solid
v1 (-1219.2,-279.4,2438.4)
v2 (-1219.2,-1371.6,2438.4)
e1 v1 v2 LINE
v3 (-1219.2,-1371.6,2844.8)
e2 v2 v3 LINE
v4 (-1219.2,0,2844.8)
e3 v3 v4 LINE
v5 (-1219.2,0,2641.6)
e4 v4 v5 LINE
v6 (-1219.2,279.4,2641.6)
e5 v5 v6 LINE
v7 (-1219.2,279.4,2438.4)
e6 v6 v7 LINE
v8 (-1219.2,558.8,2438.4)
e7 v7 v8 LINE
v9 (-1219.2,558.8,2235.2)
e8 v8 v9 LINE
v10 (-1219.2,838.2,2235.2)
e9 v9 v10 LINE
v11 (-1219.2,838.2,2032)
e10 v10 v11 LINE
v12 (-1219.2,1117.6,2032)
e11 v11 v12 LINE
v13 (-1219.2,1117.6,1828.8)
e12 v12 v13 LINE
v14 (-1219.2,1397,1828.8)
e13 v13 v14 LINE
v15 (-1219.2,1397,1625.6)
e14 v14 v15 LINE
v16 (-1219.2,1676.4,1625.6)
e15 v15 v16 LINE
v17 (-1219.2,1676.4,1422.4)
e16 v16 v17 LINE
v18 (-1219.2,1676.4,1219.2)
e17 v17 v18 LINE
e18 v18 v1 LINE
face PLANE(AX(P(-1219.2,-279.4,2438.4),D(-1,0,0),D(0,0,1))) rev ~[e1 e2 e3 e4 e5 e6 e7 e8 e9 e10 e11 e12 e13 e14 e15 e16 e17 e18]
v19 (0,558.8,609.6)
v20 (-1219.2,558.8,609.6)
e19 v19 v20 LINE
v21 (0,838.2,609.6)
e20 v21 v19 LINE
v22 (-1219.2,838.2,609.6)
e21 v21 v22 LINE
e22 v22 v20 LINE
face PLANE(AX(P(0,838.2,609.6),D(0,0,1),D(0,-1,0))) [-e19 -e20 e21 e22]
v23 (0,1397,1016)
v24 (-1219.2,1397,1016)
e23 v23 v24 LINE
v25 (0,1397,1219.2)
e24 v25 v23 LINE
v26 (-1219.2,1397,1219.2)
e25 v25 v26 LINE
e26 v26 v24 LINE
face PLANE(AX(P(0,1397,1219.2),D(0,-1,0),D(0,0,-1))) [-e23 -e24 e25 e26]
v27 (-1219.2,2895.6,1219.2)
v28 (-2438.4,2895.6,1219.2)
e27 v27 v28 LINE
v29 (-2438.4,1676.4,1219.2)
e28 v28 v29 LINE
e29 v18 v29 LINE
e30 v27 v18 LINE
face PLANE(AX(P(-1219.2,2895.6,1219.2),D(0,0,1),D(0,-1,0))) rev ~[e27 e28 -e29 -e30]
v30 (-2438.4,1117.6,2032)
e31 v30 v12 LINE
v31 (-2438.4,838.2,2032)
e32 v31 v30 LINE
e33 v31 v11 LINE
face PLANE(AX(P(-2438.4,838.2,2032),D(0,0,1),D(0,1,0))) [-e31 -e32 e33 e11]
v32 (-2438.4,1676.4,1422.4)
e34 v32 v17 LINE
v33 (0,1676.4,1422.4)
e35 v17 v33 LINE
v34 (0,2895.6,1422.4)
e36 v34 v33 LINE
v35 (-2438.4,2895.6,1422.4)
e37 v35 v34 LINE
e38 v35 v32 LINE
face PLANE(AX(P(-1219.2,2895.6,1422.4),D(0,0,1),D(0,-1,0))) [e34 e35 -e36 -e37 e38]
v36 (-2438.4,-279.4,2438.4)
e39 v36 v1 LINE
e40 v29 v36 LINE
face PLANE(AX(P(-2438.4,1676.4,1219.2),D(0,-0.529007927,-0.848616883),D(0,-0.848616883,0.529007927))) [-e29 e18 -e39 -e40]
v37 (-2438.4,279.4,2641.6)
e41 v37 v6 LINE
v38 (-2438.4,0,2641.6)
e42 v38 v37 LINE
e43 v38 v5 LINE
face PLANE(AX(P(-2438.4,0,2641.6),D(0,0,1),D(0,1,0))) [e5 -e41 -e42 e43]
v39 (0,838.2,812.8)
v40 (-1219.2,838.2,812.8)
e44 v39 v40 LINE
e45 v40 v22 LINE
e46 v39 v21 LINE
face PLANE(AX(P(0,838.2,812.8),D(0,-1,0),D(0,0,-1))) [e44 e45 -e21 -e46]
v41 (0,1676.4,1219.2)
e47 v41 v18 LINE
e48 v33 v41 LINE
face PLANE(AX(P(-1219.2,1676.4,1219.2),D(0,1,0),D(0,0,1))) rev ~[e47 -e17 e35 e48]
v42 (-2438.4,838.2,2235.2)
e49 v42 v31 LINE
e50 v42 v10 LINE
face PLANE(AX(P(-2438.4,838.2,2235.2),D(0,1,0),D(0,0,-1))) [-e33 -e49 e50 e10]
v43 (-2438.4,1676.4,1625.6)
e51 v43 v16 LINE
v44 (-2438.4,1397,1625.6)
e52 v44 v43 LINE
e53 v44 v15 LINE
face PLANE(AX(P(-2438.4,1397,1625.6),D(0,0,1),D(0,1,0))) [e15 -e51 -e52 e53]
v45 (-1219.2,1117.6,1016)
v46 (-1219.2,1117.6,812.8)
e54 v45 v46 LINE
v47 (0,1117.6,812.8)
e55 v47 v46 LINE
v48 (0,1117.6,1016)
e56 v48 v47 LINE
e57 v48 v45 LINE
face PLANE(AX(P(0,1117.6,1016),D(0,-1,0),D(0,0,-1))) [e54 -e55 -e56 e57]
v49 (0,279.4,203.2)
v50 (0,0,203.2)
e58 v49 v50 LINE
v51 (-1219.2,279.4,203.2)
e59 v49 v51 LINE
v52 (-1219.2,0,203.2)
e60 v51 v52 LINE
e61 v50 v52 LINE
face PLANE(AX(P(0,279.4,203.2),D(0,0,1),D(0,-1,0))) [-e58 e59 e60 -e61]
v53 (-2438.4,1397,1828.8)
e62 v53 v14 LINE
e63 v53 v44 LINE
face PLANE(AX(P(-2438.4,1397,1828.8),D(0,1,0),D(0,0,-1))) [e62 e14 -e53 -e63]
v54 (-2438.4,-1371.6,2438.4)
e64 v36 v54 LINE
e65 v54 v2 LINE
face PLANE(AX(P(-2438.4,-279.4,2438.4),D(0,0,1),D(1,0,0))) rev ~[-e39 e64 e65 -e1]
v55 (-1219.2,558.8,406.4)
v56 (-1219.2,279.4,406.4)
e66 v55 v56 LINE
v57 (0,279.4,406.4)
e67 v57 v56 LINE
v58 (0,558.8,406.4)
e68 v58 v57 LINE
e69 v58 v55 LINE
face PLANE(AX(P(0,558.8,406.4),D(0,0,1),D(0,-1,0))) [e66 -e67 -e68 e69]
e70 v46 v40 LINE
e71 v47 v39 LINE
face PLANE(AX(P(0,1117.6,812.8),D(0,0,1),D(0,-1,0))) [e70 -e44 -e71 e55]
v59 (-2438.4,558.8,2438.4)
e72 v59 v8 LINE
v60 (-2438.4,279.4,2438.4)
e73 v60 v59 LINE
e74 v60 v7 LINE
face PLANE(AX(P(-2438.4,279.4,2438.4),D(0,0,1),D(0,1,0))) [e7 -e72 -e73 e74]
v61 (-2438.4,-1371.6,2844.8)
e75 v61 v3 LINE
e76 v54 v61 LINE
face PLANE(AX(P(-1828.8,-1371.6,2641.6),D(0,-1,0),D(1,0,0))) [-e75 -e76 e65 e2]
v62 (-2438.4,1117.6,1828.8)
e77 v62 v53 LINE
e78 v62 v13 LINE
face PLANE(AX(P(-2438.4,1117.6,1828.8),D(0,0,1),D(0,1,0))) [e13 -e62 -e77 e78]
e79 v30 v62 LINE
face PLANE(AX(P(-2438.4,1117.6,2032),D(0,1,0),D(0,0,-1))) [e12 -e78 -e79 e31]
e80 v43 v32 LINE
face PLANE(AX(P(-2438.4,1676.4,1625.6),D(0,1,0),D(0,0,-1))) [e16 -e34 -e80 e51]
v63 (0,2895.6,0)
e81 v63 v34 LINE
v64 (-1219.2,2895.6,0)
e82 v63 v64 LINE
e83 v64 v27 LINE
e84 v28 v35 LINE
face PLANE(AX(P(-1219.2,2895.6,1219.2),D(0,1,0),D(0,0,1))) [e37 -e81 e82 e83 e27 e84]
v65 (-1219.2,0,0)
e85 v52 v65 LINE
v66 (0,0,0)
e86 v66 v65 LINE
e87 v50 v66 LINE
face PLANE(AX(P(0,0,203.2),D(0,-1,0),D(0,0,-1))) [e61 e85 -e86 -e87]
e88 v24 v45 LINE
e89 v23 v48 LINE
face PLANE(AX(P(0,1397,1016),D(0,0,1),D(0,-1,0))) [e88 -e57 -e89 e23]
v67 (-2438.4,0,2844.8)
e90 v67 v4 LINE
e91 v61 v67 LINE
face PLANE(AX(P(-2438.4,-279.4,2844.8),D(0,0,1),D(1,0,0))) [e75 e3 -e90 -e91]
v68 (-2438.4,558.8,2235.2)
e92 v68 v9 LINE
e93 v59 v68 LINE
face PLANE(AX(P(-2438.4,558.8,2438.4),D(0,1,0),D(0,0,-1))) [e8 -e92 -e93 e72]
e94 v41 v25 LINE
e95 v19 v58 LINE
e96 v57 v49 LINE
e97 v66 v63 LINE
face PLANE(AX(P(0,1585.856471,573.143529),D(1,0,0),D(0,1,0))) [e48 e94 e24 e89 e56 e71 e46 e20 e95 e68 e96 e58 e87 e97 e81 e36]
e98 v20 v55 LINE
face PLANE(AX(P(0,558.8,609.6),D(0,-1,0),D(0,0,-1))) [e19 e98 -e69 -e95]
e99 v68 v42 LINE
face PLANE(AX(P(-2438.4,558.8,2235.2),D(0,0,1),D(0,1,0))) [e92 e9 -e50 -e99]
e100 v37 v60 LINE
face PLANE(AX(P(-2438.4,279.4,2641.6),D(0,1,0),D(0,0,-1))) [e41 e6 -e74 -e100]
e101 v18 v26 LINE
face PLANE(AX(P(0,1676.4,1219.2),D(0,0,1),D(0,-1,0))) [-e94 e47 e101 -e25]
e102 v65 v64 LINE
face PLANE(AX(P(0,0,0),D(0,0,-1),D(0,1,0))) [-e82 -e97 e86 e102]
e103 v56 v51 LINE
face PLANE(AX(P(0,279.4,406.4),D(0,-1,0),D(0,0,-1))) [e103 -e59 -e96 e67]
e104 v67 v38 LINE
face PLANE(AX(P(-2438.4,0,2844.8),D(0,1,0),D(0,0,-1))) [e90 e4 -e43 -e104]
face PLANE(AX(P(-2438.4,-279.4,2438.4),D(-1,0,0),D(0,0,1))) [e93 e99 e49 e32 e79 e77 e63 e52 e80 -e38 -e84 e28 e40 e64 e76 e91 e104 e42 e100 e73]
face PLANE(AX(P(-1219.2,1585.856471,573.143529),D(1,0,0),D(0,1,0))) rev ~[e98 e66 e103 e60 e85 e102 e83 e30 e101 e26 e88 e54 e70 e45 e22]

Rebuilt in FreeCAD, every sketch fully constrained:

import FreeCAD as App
import Part
import Sketcher

V = App.Vector
Q = App.Units.Quantity

doc = App.newDocument("Part")
body = doc.addObject("PartDesign::Body", "Body")

sketch1 = body.newObject("Sketcher::SketchObject", "Sketch")
sketch1.AttachmentSupport = (doc.getObject("YZ_Plane"), [""])
sketch1.MapMode = "FlatFace"
sketch1.addGeometry([
    Part.LineSegment(V(0, 203, 0), V(0, 0, 0)),
    Part.LineSegment(V(0, 0, 0), V(2896, 0, 0)),
    Part.LineSegment(V(2896, 0, 0), V(2896, 1422, 0)),
    Part.LineSegment(V(2896, 1422, 0), V(1676, 1422, 0)),
    Part.LineSegment(V(1676, 1422, 0), V(1676, 1219, 0)),
    Part.LineSegment(V(1676, 1219, 0), V(1397, 1219, 0)),
    Part.LineSegment(V(1397, 1219, 0), V(1397, 1016, 0)),
    Part.LineSegment(V(1397, 1016, 0), V(1118, 1016, 0)),
    Part.LineSegment(V(1118, 1016, 0), V(1118, 813, 0)),
    Part.LineSegment(V(1118, 813, 0), V(838, 813, 0)),
    Part.LineSegment(V(838, 813, 0), V(838, 610, 0)),
    Part.LineSegment(V(838, 610, 0), V(559, 610, 0)),
    Part.LineSegment(V(559, 610, 0), V(559, 406, 0)),
    Part.LineSegment(V(559, 406, 0), V(279, 406, 0)),
    Part.LineSegment(V(279, 406, 0), V(279, 203, 0)),
    Part.LineSegment(V(279, 203, 0), V(0, 203, 0)),
], False)
sketch1.addConstraint([
    Sketcher.Constraint("Coincident", 0, 2, 1, 1),
    Sketcher.Constraint("Coincident", 1, 2, 2, 1),
    Sketcher.Constraint("Coincident", 2, 2, 3, 1),
    Sketcher.Constraint("Coincident", 3, 2, 4, 1),
    Sketcher.Constraint("Coincident", 4, 2, 5, 1),
    Sketcher.Constraint("Coincident", 5, 2, 6, 1),
    Sketcher.Constraint("Coincident", 6, 2, 7, 1),
    Sketcher.Constraint("Coincident", 7, 2, 8, 1),
    Sketcher.Constraint("Coincident", 8, 2, 9, 1),
    Sketcher.Constraint("Coincident", 9, 2, 10, 1),
    Sketcher.Constraint("Coincident", 10, 2, 11, 1),
    Sketcher.Constraint("Coincident", 11, 2, 12, 1),
    Sketcher.Constraint("Coincident", 12, 2, 13, 1),
    Sketcher.Constraint("Coincident", 13, 2, 14, 1),
    Sketcher.Constraint("Coincident", 14, 2, 15, 1),
    Sketcher.Constraint("Coincident", 15, 2, 0, 1),
    Sketcher.Constraint("Vertical", 0),
    Sketcher.Constraint("Horizontal", 1),
    Sketcher.Constraint("Vertical", 2),
    Sketcher.Constraint("Horizontal", 3),
    Sketcher.Constraint("Vertical", 4),
    Sketcher.Constraint("Horizontal", 5),
    Sketcher.Constraint("Vertical", 6),
    Sketcher.Constraint("Horizontal", 7),
    Sketcher.Constraint("Vertical", 8),
    Sketcher.Constraint("Horizontal", 9),
    Sketcher.Constraint("Vertical", 10),
    Sketcher.Constraint("Horizontal", 11),
    Sketcher.Constraint("Vertical", 12),
    Sketcher.Constraint("Horizontal", 13),
    Sketcher.Constraint("Vertical", 14),
    Sketcher.Constraint("Horizontal", 15),
    Sketcher.Constraint("Coincident", 0, 2, -1, 1),
    Sketcher.Constraint("Equal", 5, 7),
    Sketcher.Constraint("Equal", 7, 9),
    Sketcher.Constraint("Equal", 9, 11),
    Sketcher.Constraint("Equal", 11, 13),
    Sketcher.Constraint("Equal", 13, 15),
    Sketcher.Constraint("Equal", 0, 4),
    Sketcher.Constraint("Equal", 4, 6),
    Sketcher.Constraint("Equal", 6, 8),
    Sketcher.Constraint("Equal", 8, 10),
    Sketcher.Constraint("Equal", 10, 12),
    Sketcher.Constraint("Equal", 12, 14),
    Sketcher.Constraint("DistanceX", 1, 1, 1, 2, Q("114 in")),
    Sketcher.Constraint("DistanceX", 3, 2, 3, 1, Q("48 in")),
    Sketcher.Constraint("DistanceY", 0, 2, 0, 1, Q("8 in")),
])
pad1 = body.newObject("PartDesign::Pad", "Pad")
pad1.Profile = sketch1
pad1.Length = Q("48 in")
pad1.Reversed = True

sketch2 = body.newObject("Sketcher::SketchObject", "Sketch001")
sketch2.AttachmentSupport = (doc.getObject("YZ_Plane"), [""])
sketch2.MapMode = "FlatFace"
sketch2.AttachmentOffset = App.Placement(V(0, 0, -48 * 25.4), App.Rotation())
sketch2.addGeometry([
    Part.LineSegment(V(2896, 1422, 0), V(2896, 1219, 0)),
    Part.LineSegment(V(2896, 1219, 0), V(1676, 1219, 0)),
    Part.LineSegment(V(1676, 1219, 0), V(1676, 1422, 0)),
    Part.LineSegment(V(1676, 1422, 0), V(2896, 1422, 0)),
], False)
sketch2.addConstraint([
    Sketcher.Constraint("Coincident", 0, 2, 1, 1),
    Sketcher.Constraint("Coincident", 1, 2, 2, 1),
    Sketcher.Constraint("Coincident", 2, 2, 3, 1),
    Sketcher.Constraint("Coincident", 3, 2, 0, 1),
    Sketcher.Constraint("Vertical", 0),
    Sketcher.Constraint("Horizontal", 1),
    Sketcher.Constraint("Vertical", 2),
    Sketcher.Constraint("Horizontal", 3),
    Sketcher.Constraint("DistanceX", 1, 2, 1, 1, Q("48 in")),
    Sketcher.Constraint("DistanceY", 0, 2, 0, 1, Q("8 in")),
    Sketcher.Constraint("DistanceX", -1, 1, 0, 2, Q("114 in")),
    Sketcher.Constraint("DistanceY", -1, 1, 0, 2, Q("48 in")),
])
pad2 = body.newObject("PartDesign::Pad", "Pad001")
pad2.Profile = sketch2
pad2.Length = Q("48 in")
pad2.Reversed = True

sketch3 = body.newObject("Sketcher::SketchObject", "Sketch002")
sketch3.AttachmentSupport = (doc.getObject("YZ_Plane"), [""])
sketch3.MapMode = "FlatFace"
sketch3.AttachmentOffset = App.Placement(V(0, 0, -96 * 25.4), App.Rotation())
sketch3.addGeometry([
    Part.LineSegment(V(1676, 1626, 0), V(1676, 1219, 0)),
    Part.LineSegment(V(1676, 1219, 0), V(-279, 2438, 0)),
    Part.LineSegment(V(-279, 2438, 0), V(-279, 2845, 0)),
    Part.LineSegment(V(-279, 2845, 0), V(0, 2845, 0)),
    Part.LineSegment(V(0, 2845, 0), V(0, 2642, 0)),
    Part.LineSegment(V(0, 2642, 0), V(279, 2642, 0)),
    Part.LineSegment(V(279, 2642, 0), V(279, 2438, 0)),
    Part.LineSegment(V(279, 2438, 0), V(559, 2438, 0)),
    Part.LineSegment(V(559, 2438, 0), V(559, 2235, 0)),
    Part.LineSegment(V(559, 2235, 0), V(838, 2235, 0)),
    Part.LineSegment(V(838, 2235, 0), V(838, 2032, 0)),
    Part.LineSegment(V(838, 2032, 0), V(1118, 2032, 0)),
    Part.LineSegment(V(1118, 2032, 0), V(1118, 1829, 0)),
    Part.LineSegment(V(1118, 1829, 0), V(1397, 1829, 0)),
    Part.LineSegment(V(1397, 1829, 0), V(1397, 1626, 0)),
    Part.LineSegment(V(1397, 1626, 0), V(1676, 1626, 0)),
], False)
sketch3.addConstraint([
    Sketcher.Constraint("Coincident", 0, 2, 1, 1),
    Sketcher.Constraint("Coincident", 1, 2, 2, 1),
    Sketcher.Constraint("Coincident", 2, 2, 3, 1),
    Sketcher.Constraint("Coincident", 3, 2, 4, 1),
    Sketcher.Constraint("Coincident", 4, 2, 5, 1),
    Sketcher.Constraint("Coincident", 5, 2, 6, 1),
    Sketcher.Constraint("Coincident", 6, 2, 7, 1),
    Sketcher.Constraint("Coincident", 7, 2, 8, 1),
    Sketcher.Constraint("Coincident", 8, 2, 9, 1),
    Sketcher.Constraint("Coincident", 9, 2, 10, 1),
    Sketcher.Constraint("Coincident", 10, 2, 11, 1),
    Sketcher.Constraint("Coincident", 11, 2, 12, 1),
    Sketcher.Constraint("Coincident", 12, 2, 13, 1),
    Sketcher.Constraint("Coincident", 13, 2, 14, 1),
    Sketcher.Constraint("Coincident", 14, 2, 15, 1),
    Sketcher.Constraint("Coincident", 15, 2, 0, 1),
    Sketcher.Constraint("Vertical", 0),
    Sketcher.Constraint("Vertical", 2),
    Sketcher.Constraint("Horizontal", 3),
    Sketcher.Constraint("Vertical", 4),
    Sketcher.Constraint("Horizontal", 5),
    Sketcher.Constraint("Vertical", 6),
    Sketcher.Constraint("Horizontal", 7),
    Sketcher.Constraint("Vertical", 8),
    Sketcher.Constraint("Horizontal", 9),
    Sketcher.Constraint("Vertical", 10),
    Sketcher.Constraint("Horizontal", 11),
    Sketcher.Constraint("Vertical", 12),
    Sketcher.Constraint("Horizontal", 13),
    Sketcher.Constraint("Vertical", 14),
    Sketcher.Constraint("Horizontal", 15),
    Sketcher.Constraint("Symmetric", 1, 2, 6, 2, -2),
    Sketcher.Constraint("PointOnObject", 3, 2, -2),
    Sketcher.Constraint("Equal", 5, 7),
    Sketcher.Constraint("Equal", 7, 9),
    Sketcher.Constraint("Equal", 9, 11),
    Sketcher.Constraint("Equal", 11, 13),
    Sketcher.Constraint("Equal", 13, 15),
    Sketcher.Constraint("Equal", 0, 2),
    Sketcher.Constraint("Equal", 4, 6),
    Sketcher.Constraint("Equal", 6, 8),
    Sketcher.Constraint("Equal", 8, 10),
    Sketcher.Constraint("Equal", 10, 12),
    Sketcher.Constraint("Equal", 12, 14),
    Sketcher.Constraint("DistanceX", 3, 1, 3, 2, Q("11 in")),
    Sketcher.Constraint("DistanceY", 0, 2, 0, 1, Q("16 in")),
    Sketcher.Constraint("DistanceY", -1, 1, 0, 2, Q("48 in")),
])
pad3 = body.newObject("PartDesign::Pad", "Pad002")
pad3.Profile = sketch3
pad3.Length = Q("48 in")

sketch4 = body.newObject("Sketcher::SketchObject", "Sketch003")
sketch4.AttachmentSupport = (doc.getObject("XZ_Plane"), [""])
sketch4.MapMode = "FlatFace"
sketch4.AttachmentOffset = App.Placement(V(0, 0, 11 * 25.4), App.Rotation())
sketch4.addGeometry([
    Part.LineSegment(V(-2438, 2845, 0), V(-2438, 2438, 0)),
    Part.LineSegment(V(-2438, 2438, 0), V(-1219, 2438, 0)),
    Part.LineSegment(V(-1219, 2438, 0), V(-1219, 2845, 0)),
    Part.LineSegment(V(-1219, 2845, 0), V(-2438, 2845, 0)),
], False)
sketch4.addConstraint([
    Sketcher.Constraint("Coincident", 0, 2, 1, 1),
    Sketcher.Constraint("Coincident", 1, 2, 2, 1),
    Sketcher.Constraint("Coincident", 2, 2, 3, 1),
    Sketcher.Constraint("Coincident", 3, 2, 0, 1),
    Sketcher.Constraint("Vertical", 0),
    Sketcher.Constraint("Horizontal", 1),
    Sketcher.Constraint("Vertical", 2),
    Sketcher.Constraint("Horizontal", 3),
    Sketcher.Constraint("DistanceX", 1, 1, 1, 2, Q("48 in")),
    Sketcher.Constraint("DistanceY", 0, 2, 0, 1, Q("16 in")),
    Sketcher.Constraint("DistanceX", 0, 2, -1, 1, Q("96 in")),
    Sketcher.Constraint("DistanceY", -1, 1, 0, 2, Q("96 in")),
])
pad4 = body.newObject("PartDesign::Pad", "Pad003")
pad4.Profile = sketch4
pad4.Length = Q("43 in")

doc.recompute()
